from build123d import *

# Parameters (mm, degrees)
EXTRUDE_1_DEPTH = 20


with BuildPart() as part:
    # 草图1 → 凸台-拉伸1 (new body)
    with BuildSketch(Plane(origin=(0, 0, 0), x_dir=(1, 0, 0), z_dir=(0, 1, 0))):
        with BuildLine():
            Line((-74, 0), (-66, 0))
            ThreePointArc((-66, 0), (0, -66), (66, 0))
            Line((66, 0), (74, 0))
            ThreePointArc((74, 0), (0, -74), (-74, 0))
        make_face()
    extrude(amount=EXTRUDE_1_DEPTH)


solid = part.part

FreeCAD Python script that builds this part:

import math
import FreeCAD as App
import Part
import Sketcher
Q = App.Units.Quantity

doc = App.newDocument("Part")
body = doc.addObject("PartDesign::Body", "Body")

# Sketch on XZ plane
sketch1 = body.newObject("Sketcher::SketchObject", "Sketch")
sketch1.AttachmentSupport = (doc.getObject("XZ_Plane"), [""])
sketch1.MapMode = "FlatFace"
sketch1.addGeometry([
    Part.LineSegment(App.Vector(-66, 0, 0), App.Vector(-74, 0, 0)),
    Part.ArcOfCircle(Part.Circle(App.Vector(0, 0, 0), App.Vector(0, 0, 1), 74), math.radians(0), math.radians(180)),
    Part.LineSegment(App.Vector(74, 0, 0), App.Vector(66, 0, 0)),
    Part.ArcOfCircle(Part.Circle(App.Vector(0, 0, 0), App.Vector(0, 0, 1), 66), math.radians(0), math.radians(180)),
], False)
sketch1.addConstraint([
    Sketcher.Constraint("Coincident", 0, 2, 1, 2),
    Sketcher.Constraint("Coincident", 1, 1, 2, 1),
    Sketcher.Constraint("Coincident", 2, 2, 3, 1),
    Sketcher.Constraint("Coincident", 3, 2, 0, 1),
    Sketcher.Constraint("Horizontal", 0),
    Sketcher.Constraint("Horizontal", 2),
    Sketcher.Constraint("Coincident", 1, 3, -1, 1),
    Sketcher.Constraint("Coincident", 3, 3, -1, 1),
    Sketcher.Constraint("PointOnObject", 0, 2, -1),
    Sketcher.Constraint("PointOnObject", 1, 1, -1),
    Sketcher.Constraint("Radius", 1, Q("74 mm")),
    Sketcher.Constraint("Radius", 3, Q("66 mm")),
])
pad1 = body.newObject("PartDesign::Pad", "Pad")
pad1.Profile = sketch1
pad1.Length = 20
pad1.Reversed = True

doc.recompute()
